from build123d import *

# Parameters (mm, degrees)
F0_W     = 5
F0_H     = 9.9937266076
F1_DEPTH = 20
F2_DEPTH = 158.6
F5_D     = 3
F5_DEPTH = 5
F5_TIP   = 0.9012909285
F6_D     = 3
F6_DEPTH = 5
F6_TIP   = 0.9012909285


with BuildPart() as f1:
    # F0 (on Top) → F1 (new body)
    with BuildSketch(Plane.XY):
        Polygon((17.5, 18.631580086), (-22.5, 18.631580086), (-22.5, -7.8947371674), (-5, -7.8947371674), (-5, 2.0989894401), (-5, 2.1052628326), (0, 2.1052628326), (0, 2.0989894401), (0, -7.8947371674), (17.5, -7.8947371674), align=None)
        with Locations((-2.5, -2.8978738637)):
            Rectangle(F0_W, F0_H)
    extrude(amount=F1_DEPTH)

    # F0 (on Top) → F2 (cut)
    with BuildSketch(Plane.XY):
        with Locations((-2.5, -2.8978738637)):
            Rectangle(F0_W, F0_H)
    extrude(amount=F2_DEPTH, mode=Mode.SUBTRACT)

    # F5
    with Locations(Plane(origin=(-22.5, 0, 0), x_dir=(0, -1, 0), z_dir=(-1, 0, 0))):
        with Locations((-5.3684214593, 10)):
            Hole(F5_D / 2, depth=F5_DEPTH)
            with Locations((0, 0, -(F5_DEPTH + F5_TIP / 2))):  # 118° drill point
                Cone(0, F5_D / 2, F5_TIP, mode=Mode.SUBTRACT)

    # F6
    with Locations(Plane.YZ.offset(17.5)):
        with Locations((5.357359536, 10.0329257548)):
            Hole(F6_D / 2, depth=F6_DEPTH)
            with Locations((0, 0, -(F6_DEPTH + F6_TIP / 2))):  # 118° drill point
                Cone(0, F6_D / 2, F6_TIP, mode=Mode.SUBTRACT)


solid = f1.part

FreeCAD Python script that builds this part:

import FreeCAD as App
import Part
import Sketcher


def add_polygon(sketch, points):
    """Adds a closed chain of lines whose ends are joined by coincident constraints."""
    first, n = sketch.GeometryCount, len(points)
    for a, b in zip(points, points[1:] + points[:1]):
        sketch.addGeometry(Part.LineSegment(App.Vector(*a, 0), App.Vector(*b, 0)), False)
    for i in range(n):
        sketch.addConstraint(Sketcher.Constraint("Coincident", first + i, 2, first + (i + 1) % n, 1))

doc = App.newDocument("Part")
body = doc.addObject("PartDesign::Body", "Body")

# Sketch on XY plane
sketch1 = doc.addObject("Sketcher::SketchObject", "Sketch")
body.addObject(sketch1)
sketch1.AttachmentSupport = (doc.XY_Plane, [""])
sketch1.MapMode = "FlatFace"
add_polygon(sketch1, [(17.5, 18.63158), (-22.5, 18.63158), (-22.5, -7.894737), (-5, -7.894737), (0, -7.894737), (17.5, -7.894737)])  # lines 0-5
add_polygon(sketch1, [(-5, 2.098989), (-5, 2.105263), (0, 2.105263), (0, 2.098989)])  # lines 6-9
sketch1.addConstraint([
    Sketcher.Constraint("Horizontal", 0),
    Sketcher.Constraint("Vertical", 1),
    Sketcher.Constraint("Horizontal", 2),
    Sketcher.Constraint("Horizontal", 3),
    Sketcher.Constraint("Horizontal", 4),
    Sketcher.Constraint("Vertical", 5),
    Sketcher.Constraint("Vertical", 6),
    Sketcher.Constraint("Horizontal", 7),
    Sketcher.Constraint("Vertical", 8),
    Sketcher.Constraint("Horizontal", 9),
    Sketcher.Constraint("PointOnObject", 3, 2, -2),
    Sketcher.Constraint("PointOnObject", 7, 2, -2),
    Sketcher.Constraint("Vertical", 2, 2, 6, 2),
    Sketcher.Constraint("Equal", 2, 4),
    Sketcher.Constraint("DistanceX", 0, 2, 0, 1, 40.0),
    Sketcher.Constraint("DistanceX", 3, 1, 3, 2, 5.0),
    Sketcher.Constraint("DistanceY", 2, 2, 6, 2, 10.0),
    Sketcher.Constraint("DistanceY", 1, 2, 1, 1, 26.526317),
    Sketcher.Constraint("DistanceY", 6, 1, 6, 2, 0.006273),
    Sketcher.Constraint("DistanceY", -1, 1, 0, 2, 18.63158),
])
pad1 = doc.addObject("PartDesign::Pad", "Pad")
body.addObject(pad1)
pad1.Profile = sketch1
pad1.Length = 20

# Sketch on XY plane
sketch2 = doc.addObject("Sketcher::SketchObject", "Sketch001")
body.addObject(sketch2)
sketch2.AttachmentSupport = (doc.XY_Plane, [""])
sketch2.MapMode = "FlatFace"
add_polygon(sketch2, [(-5, 2.098989), (-5, -7.894737), (0, -7.894737), (0, 2.098989)])  # lines 0-3
sketch2.addConstraint([
    Sketcher.Constraint("Vertical", 0),
    Sketcher.Constraint("Horizontal", 1),
    Sketcher.Constraint("Vertical", 2),
    Sketcher.Constraint("Horizontal", 3),
    Sketcher.Constraint("PointOnObject", 1, 2, -2),
    Sketcher.Constraint("DistanceX", 1, 1, 1, 2, 5.0),
    Sketcher.Constraint("DistanceY", 0, 2, 0, 1, 9.993727),
    Sketcher.Constraint("DistanceY", -1, 1, 2, 2, 2.098989),
])
pocket1 = doc.addObject("PartDesign::Pocket", "Pocket")
body.addObject(pocket1)
pocket1.Profile = sketch2
pocket1.Length = 158.6
pocket1.Reversed = True

# Sketch on YZ plane
sketch3 = doc.addObject("Sketcher::SketchObject", "Sketch002")
body.addObject(sketch3)
sketch3.AttachmentSupport = (doc.YZ_Plane, [""])
sketch3.MapMode = "FlatFace"
sketch3.AttachmentOffset = App.Placement(App.Vector(0, 0, -22.5), App.Rotation())
sketch3.addGeometry(Part.Circle(App.Vector(5.368421, 10, 0), App.Vector(0, 0, 1), 1.5), False)
sketch3.addConstraint([
    Sketcher.Constraint("Diameter", 0, 3.0),
    Sketcher.Constraint("DistanceY", -1, 1, 0, 3, 10.0),
    Sketcher.Constraint("DistanceX", -1, 1, 0, 3, 5.368421),
])
doc.recompute()
hole = doc.addObject("PartDesign::Hole", "Hole")
body.addObject(hole)
hole.Profile = sketch3
hole.ThreadType = "None"
hole.Diameter = 3
hole.DepthType = "Dimension"
hole.Depth = 5
hole.DrillPoint = "Angled"
hole.DrillPointAngle = 118
hole.Reversed = True

# Sketch on YZ plane
sketch4 = doc.addObject("Sketcher::SketchObject", "Sketch003")
body.addObject(sketch4)
sketch4.AttachmentSupport = (doc.YZ_Plane, [""])
sketch4.MapMode = "FlatFace"
sketch4.AttachmentOffset = App.Placement(App.Vector(0, 0, 17.5), App.Rotation())
sketch4.addGeometry(Part.Circle(App.Vector(5.35736, 10.032926, 0), App.Vector(0, 0, 1), 1.5), False)
sketch4.addConstraint([
    Sketcher.Constraint("Diameter", 0, 3.0),
    Sketcher.Constraint("DistanceX", -1, 1, 0, 3, 5.35736),
    Sketcher.Constraint("DistanceY", -1, 1, 0, 3, 10.032926),
])
doc.recompute()
hole2 = doc.addObject("PartDesign::Hole", "Hole001")
body.addObject(hole2)
hole2.Profile = sketch4
hole2.ThreadType = "None"
hole2.Diameter = 3
hole2.DepthType = "Dimension"
hole2.Depth = 5
hole2.DrillPoint = "Angled"
hole2.DrillPointAngle = 118

doc.recompute()
